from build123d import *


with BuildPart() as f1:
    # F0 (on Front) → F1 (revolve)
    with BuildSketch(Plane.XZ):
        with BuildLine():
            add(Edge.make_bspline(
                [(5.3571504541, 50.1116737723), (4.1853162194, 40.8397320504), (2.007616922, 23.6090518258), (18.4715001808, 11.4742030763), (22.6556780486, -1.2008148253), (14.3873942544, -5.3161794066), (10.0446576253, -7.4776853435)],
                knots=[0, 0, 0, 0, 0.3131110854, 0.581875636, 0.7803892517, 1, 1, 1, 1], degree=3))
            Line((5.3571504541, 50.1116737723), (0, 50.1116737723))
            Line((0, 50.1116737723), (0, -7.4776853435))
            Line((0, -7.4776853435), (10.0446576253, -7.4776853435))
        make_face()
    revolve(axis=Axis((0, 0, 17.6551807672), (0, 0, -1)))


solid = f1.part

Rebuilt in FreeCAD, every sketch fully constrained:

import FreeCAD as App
import Part
import Sketcher
from FreeCAD import Vector

doc = App.newDocument("Part")
body = doc.addObject("PartDesign::Body", "Body")

sketch1 = doc.addObject("Sketcher::SketchObject", "Sketch")
body.addObject(sketch1)
sketch1.AttachmentSupport = (doc.XZ_Plane, [""])
sketch1.MapMode = "FlatFace"
sketch1.addGeometry(Part.BSplineCurve([Vector(5.35715, 50.111674, 0), Vector(4.185316, 40.839732, 0), Vector(2.007617, 23.609052, 0), Vector(18.4715, 11.474203, 0), Vector(22.655678, -1.200815, 0), Vector(14.387394, -5.316179, 0), Vector(10.044658, -7.477685, 0)], [4, 1, 1, 1, 4], [0, 0.313111085, 0.581875636, 0.780389252, 1], False, 3, [1, 1, 1, 1, 1, 1, 1], False), False)
sketch1.addGeometry(Part.LineSegment(Vector(5.35715, 50.111674, 0), Vector(0, 50.111674, 0)), False)
sketch1.addGeometry(Part.LineSegment(Vector(0, 50.111674, 0), Vector(0, -7.477685, 0)), False)
sketch1.addGeometry(Part.LineSegment(Vector(0, -7.477685, 0), Vector(10.044658, -7.477685, 0)), False)
sketch1.addConstraint(Sketcher.Constraint("Block", 0))
sketch1.addConstraint(Sketcher.Constraint("Coincident", 0, 1, 1, 1))
sketch1.addConstraint(Sketcher.Constraint("Coincident", 1, 2, 2, 1))
sketch1.addConstraint(Sketcher.Constraint("Coincident", 2, 2, 3, 1))
sketch1.addConstraint(Sketcher.Constraint("Coincident", 3, 2, 0, 2))
sketch1.addConstraint(Sketcher.Constraint("Horizontal", 1))
sketch1.addConstraint(Sketcher.Constraint("Vertical", 2))
sketch1.addConstraint(Sketcher.Constraint("Horizontal", 3))
sketch1.addConstraint(Sketcher.Constraint("PointOnObject", 1, 2, -2))
revolution = doc.addObject("PartDesign::Revolution", "Revolution")
body.addObject(revolution)
revolution.Profile = sketch1
revolution.ReferenceAxis = (sketch1, ["V_Axis"])
revolution.Angle = 360

doc.recompute()
